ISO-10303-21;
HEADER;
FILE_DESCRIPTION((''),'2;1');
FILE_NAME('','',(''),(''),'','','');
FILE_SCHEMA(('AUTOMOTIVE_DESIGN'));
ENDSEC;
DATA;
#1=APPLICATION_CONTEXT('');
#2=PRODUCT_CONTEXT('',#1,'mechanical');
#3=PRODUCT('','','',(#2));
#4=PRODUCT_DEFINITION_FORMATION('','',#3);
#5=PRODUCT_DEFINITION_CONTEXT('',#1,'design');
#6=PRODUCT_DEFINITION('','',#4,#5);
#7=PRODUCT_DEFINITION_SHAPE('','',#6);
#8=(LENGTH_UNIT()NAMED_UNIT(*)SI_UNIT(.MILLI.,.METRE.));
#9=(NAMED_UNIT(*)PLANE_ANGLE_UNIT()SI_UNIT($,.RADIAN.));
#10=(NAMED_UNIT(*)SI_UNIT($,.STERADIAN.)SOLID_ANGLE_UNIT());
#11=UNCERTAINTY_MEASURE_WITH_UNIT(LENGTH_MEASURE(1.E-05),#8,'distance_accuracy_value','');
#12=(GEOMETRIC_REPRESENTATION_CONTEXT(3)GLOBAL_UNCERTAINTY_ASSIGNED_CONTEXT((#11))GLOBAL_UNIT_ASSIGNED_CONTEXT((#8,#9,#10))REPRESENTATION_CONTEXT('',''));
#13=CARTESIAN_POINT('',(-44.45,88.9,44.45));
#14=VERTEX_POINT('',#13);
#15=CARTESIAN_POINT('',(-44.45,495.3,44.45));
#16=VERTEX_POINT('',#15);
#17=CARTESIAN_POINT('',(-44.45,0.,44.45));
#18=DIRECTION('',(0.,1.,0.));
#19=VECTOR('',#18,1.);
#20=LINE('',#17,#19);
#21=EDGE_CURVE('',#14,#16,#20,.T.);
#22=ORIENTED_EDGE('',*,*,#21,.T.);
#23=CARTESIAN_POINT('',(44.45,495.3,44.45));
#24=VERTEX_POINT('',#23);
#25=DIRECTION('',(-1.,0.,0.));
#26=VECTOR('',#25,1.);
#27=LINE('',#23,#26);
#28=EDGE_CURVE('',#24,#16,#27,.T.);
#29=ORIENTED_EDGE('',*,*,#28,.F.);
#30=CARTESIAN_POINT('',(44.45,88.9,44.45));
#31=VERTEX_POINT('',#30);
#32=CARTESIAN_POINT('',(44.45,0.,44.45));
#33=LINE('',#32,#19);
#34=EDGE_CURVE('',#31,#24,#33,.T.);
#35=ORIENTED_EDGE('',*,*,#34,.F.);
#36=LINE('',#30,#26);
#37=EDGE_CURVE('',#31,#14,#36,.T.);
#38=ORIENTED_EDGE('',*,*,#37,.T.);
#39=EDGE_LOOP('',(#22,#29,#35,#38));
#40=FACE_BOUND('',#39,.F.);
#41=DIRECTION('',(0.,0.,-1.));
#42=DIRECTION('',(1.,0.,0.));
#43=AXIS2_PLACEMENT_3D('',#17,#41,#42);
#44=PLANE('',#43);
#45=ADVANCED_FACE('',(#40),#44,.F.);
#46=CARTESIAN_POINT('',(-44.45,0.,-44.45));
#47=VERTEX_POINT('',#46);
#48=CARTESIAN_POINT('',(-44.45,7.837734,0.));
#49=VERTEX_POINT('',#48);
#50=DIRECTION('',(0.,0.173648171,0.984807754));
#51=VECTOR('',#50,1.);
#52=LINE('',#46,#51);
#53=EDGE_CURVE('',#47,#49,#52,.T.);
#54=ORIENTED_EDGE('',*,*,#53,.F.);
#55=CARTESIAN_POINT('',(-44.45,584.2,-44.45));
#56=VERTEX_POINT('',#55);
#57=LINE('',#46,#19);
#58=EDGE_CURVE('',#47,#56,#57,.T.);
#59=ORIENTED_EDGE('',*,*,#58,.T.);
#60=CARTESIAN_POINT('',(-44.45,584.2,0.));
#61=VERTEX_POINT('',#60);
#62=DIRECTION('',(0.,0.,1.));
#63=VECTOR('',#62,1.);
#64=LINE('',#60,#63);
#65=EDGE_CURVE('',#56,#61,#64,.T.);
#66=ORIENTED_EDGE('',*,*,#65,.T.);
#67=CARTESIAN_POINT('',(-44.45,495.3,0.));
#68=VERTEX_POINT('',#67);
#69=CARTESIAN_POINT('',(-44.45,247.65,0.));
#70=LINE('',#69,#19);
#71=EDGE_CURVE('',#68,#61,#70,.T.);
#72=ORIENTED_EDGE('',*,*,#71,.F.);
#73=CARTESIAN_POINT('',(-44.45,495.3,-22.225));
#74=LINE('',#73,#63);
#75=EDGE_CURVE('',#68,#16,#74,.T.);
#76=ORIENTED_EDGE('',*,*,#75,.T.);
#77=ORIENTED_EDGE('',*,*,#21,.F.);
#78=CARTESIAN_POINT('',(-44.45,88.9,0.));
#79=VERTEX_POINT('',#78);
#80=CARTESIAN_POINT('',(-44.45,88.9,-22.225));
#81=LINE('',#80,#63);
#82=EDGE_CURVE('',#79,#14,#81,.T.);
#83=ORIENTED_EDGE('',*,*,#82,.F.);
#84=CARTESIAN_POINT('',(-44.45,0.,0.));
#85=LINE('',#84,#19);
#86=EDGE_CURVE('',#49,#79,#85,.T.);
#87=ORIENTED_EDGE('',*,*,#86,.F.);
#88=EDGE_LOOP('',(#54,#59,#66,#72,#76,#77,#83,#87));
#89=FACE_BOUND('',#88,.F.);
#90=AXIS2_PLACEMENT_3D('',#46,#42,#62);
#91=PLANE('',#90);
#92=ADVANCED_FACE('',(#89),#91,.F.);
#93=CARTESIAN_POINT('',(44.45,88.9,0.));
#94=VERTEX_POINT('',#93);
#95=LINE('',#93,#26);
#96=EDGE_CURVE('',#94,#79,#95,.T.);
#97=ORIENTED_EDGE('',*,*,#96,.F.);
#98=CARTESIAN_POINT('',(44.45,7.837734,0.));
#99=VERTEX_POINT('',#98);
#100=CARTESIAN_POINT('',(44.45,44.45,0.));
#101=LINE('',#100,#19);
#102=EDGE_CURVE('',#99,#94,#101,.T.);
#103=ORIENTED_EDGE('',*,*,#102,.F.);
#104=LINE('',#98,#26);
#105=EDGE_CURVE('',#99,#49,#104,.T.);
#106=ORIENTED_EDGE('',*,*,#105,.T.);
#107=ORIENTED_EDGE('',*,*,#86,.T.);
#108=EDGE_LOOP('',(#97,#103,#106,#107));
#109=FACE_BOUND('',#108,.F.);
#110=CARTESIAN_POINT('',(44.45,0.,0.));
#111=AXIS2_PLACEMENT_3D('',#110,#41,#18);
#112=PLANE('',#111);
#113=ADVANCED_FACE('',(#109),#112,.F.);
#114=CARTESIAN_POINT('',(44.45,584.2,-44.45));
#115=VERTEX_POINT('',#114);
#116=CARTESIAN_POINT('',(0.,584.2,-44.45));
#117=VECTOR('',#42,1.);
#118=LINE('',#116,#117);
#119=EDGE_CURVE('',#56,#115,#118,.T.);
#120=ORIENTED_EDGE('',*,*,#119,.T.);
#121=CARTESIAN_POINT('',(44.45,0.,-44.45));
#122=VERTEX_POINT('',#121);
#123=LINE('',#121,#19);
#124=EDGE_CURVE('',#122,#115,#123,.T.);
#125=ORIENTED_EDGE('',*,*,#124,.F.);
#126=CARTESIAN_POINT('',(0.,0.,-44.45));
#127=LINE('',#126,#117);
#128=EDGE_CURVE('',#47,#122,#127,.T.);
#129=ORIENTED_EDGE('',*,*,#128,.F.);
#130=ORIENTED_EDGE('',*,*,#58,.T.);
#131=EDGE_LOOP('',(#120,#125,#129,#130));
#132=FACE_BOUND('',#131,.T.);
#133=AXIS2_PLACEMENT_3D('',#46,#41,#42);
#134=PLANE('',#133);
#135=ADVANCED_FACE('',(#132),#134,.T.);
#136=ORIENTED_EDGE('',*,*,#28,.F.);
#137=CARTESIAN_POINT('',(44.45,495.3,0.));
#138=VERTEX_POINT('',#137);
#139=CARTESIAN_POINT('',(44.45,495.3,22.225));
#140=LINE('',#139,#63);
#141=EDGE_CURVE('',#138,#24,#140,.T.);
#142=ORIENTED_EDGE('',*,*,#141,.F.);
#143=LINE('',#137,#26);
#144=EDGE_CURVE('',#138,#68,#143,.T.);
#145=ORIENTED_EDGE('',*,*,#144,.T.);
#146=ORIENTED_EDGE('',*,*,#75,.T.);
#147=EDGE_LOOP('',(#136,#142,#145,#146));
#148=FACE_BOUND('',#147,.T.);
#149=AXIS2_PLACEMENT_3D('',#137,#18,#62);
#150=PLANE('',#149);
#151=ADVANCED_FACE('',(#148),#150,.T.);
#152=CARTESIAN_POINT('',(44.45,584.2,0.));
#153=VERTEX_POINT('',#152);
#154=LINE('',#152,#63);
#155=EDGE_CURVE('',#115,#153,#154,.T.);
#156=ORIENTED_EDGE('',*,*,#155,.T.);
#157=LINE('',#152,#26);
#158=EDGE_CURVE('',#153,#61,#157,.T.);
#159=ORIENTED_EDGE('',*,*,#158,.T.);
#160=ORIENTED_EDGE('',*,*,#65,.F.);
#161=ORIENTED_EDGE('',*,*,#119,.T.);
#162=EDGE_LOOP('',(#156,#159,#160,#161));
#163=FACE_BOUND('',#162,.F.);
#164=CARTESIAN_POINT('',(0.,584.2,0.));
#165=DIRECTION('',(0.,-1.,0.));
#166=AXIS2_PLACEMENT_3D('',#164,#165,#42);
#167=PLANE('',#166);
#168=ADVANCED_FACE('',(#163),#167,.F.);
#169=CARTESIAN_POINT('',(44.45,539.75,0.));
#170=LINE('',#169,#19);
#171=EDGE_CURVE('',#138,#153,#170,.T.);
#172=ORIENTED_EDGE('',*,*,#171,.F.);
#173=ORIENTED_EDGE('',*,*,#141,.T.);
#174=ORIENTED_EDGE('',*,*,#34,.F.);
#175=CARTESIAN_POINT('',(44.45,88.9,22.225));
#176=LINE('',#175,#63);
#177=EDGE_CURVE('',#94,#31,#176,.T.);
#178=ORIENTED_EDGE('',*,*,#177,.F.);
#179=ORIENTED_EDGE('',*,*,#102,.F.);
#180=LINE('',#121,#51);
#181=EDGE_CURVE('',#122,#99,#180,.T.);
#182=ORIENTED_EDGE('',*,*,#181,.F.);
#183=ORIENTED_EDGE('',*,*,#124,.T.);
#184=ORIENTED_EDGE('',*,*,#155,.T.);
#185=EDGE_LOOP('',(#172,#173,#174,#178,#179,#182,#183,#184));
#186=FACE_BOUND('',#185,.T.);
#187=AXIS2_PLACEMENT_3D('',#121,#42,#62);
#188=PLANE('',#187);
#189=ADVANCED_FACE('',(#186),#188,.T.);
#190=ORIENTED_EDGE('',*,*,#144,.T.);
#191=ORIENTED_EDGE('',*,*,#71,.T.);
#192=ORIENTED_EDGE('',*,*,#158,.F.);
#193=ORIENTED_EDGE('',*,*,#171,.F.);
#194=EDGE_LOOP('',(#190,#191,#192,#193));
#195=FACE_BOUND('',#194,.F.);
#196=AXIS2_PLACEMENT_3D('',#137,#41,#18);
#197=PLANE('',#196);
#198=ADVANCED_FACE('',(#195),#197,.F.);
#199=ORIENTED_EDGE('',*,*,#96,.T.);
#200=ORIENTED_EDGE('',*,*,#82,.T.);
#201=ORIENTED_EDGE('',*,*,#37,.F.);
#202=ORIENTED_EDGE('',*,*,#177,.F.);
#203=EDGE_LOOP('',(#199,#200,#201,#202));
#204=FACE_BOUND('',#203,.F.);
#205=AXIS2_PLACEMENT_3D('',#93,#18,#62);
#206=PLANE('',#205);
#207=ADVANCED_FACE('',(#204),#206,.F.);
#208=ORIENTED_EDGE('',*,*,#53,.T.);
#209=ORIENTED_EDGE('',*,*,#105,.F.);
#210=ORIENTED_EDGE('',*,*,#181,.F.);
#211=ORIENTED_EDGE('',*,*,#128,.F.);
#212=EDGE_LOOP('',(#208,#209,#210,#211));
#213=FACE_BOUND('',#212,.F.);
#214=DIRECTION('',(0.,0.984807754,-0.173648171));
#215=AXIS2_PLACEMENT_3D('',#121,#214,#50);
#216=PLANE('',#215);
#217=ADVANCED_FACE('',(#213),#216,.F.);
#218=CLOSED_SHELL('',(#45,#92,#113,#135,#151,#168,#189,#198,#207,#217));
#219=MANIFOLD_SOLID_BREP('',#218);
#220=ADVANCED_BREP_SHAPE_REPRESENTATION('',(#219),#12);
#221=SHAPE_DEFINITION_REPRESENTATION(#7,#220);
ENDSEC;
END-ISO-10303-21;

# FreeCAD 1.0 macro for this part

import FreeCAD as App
import Part
import Sketcher

V = App.Vector
Q = App.Units.Quantity


def add_polygon(sketch, points):
    """Adds a closed chain of lines whose ends are joined by coincident constraints."""
    first, n = sketch.GeometryCount, len(points)
    for a, b in zip(points, points[1:] + points[:1]):
        sketch.addGeometry(Part.LineSegment(App.Vector(*a, 0), App.Vector(*b, 0)), False)
    for i in range(n):
        sketch.addConstraint(Sketcher.Constraint("Coincident", first + i, 2, first + (i + 1) % n, 1))

doc = App.newDocument("Part")
body = doc.addObject("PartDesign::Body", "Body")

sketch1 = doc.addObject("Sketcher::SketchObject", "Sketch")
body.addObject(sketch1)
sketch1.AttachmentSupport = (doc.XZ_Plane, [""])
sketch1.MapMode = "FlatFace"
add_polygon(sketch1, [(-44.45, 44.45), (-44.45, -44.45), (44.45, -44.45), (44.45, 44.45)])
sketch1.addConstraint([
    Sketcher.Constraint("Vertical", 0),
    Sketcher.Constraint("Horizontal", 1),
    Sketcher.Constraint("Vertical", 2),
    Sketcher.Constraint("Horizontal", 3),
    Sketcher.Constraint("Symmetric", 0, 2, 2, 2, -1, 1),
    Sketcher.Constraint("Equal", 3, 0),
    Sketcher.Constraint("DistanceX", 1, 1, 1, 2, Q("3.5 in")),
])
pad1 = doc.addObject("PartDesign::Pad", "Pad")
body.addObject(pad1)
pad1.Profile = sketch1
pad1.Length = Q("23 in")
pad1.Reversed = True

sketch2 = doc.addObject("Sketcher::SketchObject", "Sketch001")
body.addObject(sketch2)
sketch2.AttachmentSupport = (doc.YZ_Plane, [""])
sketch2.MapMode = "FlatFace"
sketch2.AttachmentOffset = App.Placement(V(0, 0, 1.75 * 25.4), App.Rotation())
add_polygon(sketch2, [(0, 44.45), (0, 0), (88.9, 0), (88.9, 44.45)])
add_polygon(sketch2, [(495.3, 44.45), (495.3, 0), (584.2, 0), (584.2, 44.45)])
sketch2.addConstraint([
    Sketcher.Constraint("Vertical", 0),
    Sketcher.Constraint("Horizontal", 1),
    Sketcher.Constraint("Vertical", 2),
    Sketcher.Constraint("Horizontal", 3),
    Sketcher.Constraint("Vertical", 4),
    Sketcher.Constraint("Horizontal", 5),
    Sketcher.Constraint("Vertical", 6),
    Sketcher.Constraint("Horizontal", 7),
    Sketcher.Constraint("Coincident", 0, 2, -1, 1),
    Sketcher.Constraint("PointOnObject", 4, 2, -1),
    Sketcher.Constraint("Horizontal", 3, 2, 6, 2),
    Sketcher.Constraint("Equal", 3, 5),
    Sketcher.Constraint("DistanceX", 1, 1, 1, 2, Q("3.5 in")),
    Sketcher.Constraint("DistanceX", -1, 1, 5, 2, Q("23 in")),
    Sketcher.Constraint("DistanceY", 0, 2, 0, 1, Q("1.75 in")),
])
pocket1 = doc.addObject("PartDesign::Pocket", "Pocket")
body.addObject(pocket1)
pocket1.Profile = sketch2
pocket1.Type = "ThroughAll"

sketch3 = doc.addObject("Sketcher::SketchObject", "Sketch002")
body.addObject(sketch3)
sketch3.AttachmentSupport = (doc.YZ_Plane, [""])
sketch3.MapMode = "FlatFace"
sketch3.AttachmentOffset = App.Placement(V(0, 0, 1.75 * 25.4), App.Rotation())
add_polygon(sketch3, [(0, 0), (0, -44.45), (7.837734, 0)])
sketch3.addConstraint([
    Sketcher.Constraint("Vertical", 0),
    Sketcher.Constraint("Horizontal", 2),
    Sketcher.Constraint("Coincident", 2, 2, -1, 1),
    Sketcher.Constraint("Angle", 1, Q("80 deg")),
    Sketcher.Constraint("DistanceY", 0, 2, 0, 1, Q("1.75 in")),
])
pocket2 = doc.addObject("PartDesign::Pocket", "Pocket001")
body.addObject(pocket2)
pocket2.Profile = sketch3
pocket2.Type = "ThroughAll"

doc.recompute()
